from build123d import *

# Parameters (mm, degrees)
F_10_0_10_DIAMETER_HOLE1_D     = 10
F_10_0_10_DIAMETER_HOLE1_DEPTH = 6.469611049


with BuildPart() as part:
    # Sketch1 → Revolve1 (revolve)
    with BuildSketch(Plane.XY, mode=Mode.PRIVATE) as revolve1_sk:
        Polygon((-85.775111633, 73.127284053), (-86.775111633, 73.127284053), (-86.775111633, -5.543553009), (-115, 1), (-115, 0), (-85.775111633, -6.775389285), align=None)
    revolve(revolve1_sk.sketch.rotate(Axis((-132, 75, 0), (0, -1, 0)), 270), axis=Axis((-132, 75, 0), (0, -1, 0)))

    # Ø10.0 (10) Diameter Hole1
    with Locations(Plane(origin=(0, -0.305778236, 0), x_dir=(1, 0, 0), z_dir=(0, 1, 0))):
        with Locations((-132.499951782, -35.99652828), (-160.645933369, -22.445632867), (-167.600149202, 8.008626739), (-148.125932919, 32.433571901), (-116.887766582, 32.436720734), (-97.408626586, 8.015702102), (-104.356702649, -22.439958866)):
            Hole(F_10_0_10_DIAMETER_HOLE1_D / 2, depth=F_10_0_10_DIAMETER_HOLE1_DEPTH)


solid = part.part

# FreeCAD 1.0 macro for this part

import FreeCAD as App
import Part
import Sketcher
Q = App.Units.Quantity


def add_polygon(sketch, points):
    """Adds a closed chain of lines whose ends are joined by coincident constraints."""
    first, n = sketch.GeometryCount, len(points)
    for a, b in zip(points, points[1:] + points[:1]):
        sketch.addGeometry(Part.LineSegment(App.Vector(*a, 0), App.Vector(*b, 0)), False)
    for i in range(n):
        sketch.addConstraint(Sketcher.Constraint("Coincident", first + i, 2, first + (i + 1) % n, 1))

doc = App.newDocument("Part")
body = doc.addObject("PartDesign::Body", "Body")

# Sketch on XY plane
sketch1 = doc.addObject("Sketcher::SketchObject", "Sketch")
body.addObject(sketch1)
sketch1.AttachmentSupport = (doc.XY_Plane, [""])
sketch1.MapMode = "FlatFace"
add_polygon(sketch1, [(-85.8, 73.1), (-86.8, 73.1), (-86.8, -5.5), (-115, 1), (-115, 0), (-85.8, -6.8)])  # lines 0-5
sketch1.addGeometry(Part.LineSegment(App.Vector(-132, 73.1, 0), App.Vector(-132, -6.8, 0)), True)  # axis
sketch1.addConstraint(Sketcher.Constraint("Horizontal", 0))
sketch1.addConstraint(Sketcher.Constraint("Vertical", 1))
sketch1.addConstraint(Sketcher.Constraint("Vertical", 3))
sketch1.addConstraint(Sketcher.Constraint("Vertical", 5))
sketch1.addConstraint(Sketcher.Constraint("Vertical", 6))
sketch1.addConstraint(Sketcher.Constraint("PointOnObject", 3, 2, -1))
sketch1.addConstraint(Sketcher.Constraint("Parallel", 2, 4))
sketch1.addConstraint(Sketcher.Constraint("Horizontal", 5, 2, 6, 1))
sketch1.addConstraint(Sketcher.Constraint("Horizontal", 4, 2, 6, 2))
sketch1.addConstraint(Sketcher.Constraint("Equal", 0, 3))
sketch1.addConstraint(Sketcher.Constraint("DistanceX", 0, 2, 0, 1, Q("1 mm")))
sketch1.addConstraint(Sketcher.Constraint("Distance", 4, Q("30 mm")))
sketch1.addConstraint(Sketcher.Constraint("DistanceX", 2, 2, -1, 1, Q("115 mm")))
sketch1.addConstraint(Sketcher.Constraint("DistanceX", 6, 1, -1, 1, Q("132 mm")))
sketch1.addConstraint(Sketcher.Constraint("DistanceY", 1, 2, 1, 1, Q("78.670837 mm")))
sketch1.addConstraint(Sketcher.Constraint("DistanceY", 5, 1, 5, 2, Q("79.902673 mm")))
revolution = doc.addObject("PartDesign::Revolution", "Revolution")
body.addObject(revolution)
revolution.Profile = sketch1
revolution.ReferenceAxis = (sketch1, ["Axis0"])
revolution.Angle = 360

# Sketch on XZ plane
sketch2 = doc.addObject("Sketcher::SketchObject", "Sketch001")
body.addObject(sketch2)
sketch2.AttachmentSupport = (doc.XZ_Plane, [""])
sketch2.MapMode = "FlatFace"
sketch2.AttachmentOffset = App.Placement(App.Vector(0, 0, 0.305778), App.Rotation())
sketch2.addGeometry(Part.Circle(App.Vector(-132, 36, 0), App.Vector(0, 0, 1), 5), False)
sketch2.addGeometry(Part.Circle(App.Vector(-161, 22, 0), App.Vector(0, 0, 1), 5), False)
sketch2.addGeometry(Part.Circle(App.Vector(-168, -8, 0), App.Vector(0, 0, 1), 5), False)
sketch2.addGeometry(Part.Circle(App.Vector(-148, -32, 0), App.Vector(0, 0, 1), 5), False)
sketch2.addGeometry(Part.Circle(App.Vector(-117, -32, 0), App.Vector(0, 0, 1), 5), False)
sketch2.addGeometry(Part.Circle(App.Vector(-97, -8, 0), App.Vector(0, 0, 1), 5), False)
sketch2.addGeometry(Part.Circle(App.Vector(-104, 22, 0), App.Vector(0, 0, 1), 5), False)
sketch2.addConstraint(Sketcher.Constraint("Equal", 0, 1))
sketch2.addConstraint(Sketcher.Constraint("Equal", 1, 2))
sketch2.addConstraint(Sketcher.Constraint("Equal", 2, 3))
sketch2.addConstraint(Sketcher.Constraint("Equal", 3, 4))
sketch2.addConstraint(Sketcher.Constraint("Equal", 4, 5))
sketch2.addConstraint(Sketcher.Constraint("Equal", 5, 6))
sketch2.addConstraint(Sketcher.Constraint("Diameter", 0, Q("10 mm")))
sketch2.addConstraint(Sketcher.Constraint("DistanceX", 1, 3, 3, 3, Q("12.52 mm")))
sketch2.addConstraint(Sketcher.Constraint("DistanceY", 3, 3, 0, 3, Q("68.4301 mm")))
sketch2.addConstraint(Sketcher.Constraint("DistanceX", 0, 3, -1, 1, Q("132.499952 mm")))
sketch2.addConstraint(Sketcher.Constraint("DistanceY", -1, 1, 0, 3, Q("35.996528 mm")))
sketch2.addConstraint(Sketcher.Constraint("DistanceX", 2, 3, -1, 1, Q("167.600149 mm")))
sketch2.addConstraint(Sketcher.Constraint("DistanceY", 4, 3, -1, 1, Q("32.436721 mm")))
sketch2.addConstraint(Sketcher.Constraint("DistanceY", -1, 1, 6, 3, Q("22.439959 mm")))
sketch2.addConstraint(Sketcher.Constraint("DistanceX", 1, 3, 0, 3, Q("28.145982 mm")))
sketch2.addConstraint(Sketcher.Constraint("DistanceY", 2, 3, 1, 3, Q("30.45426 mm")))
sketch2.addConstraint(Sketcher.Constraint("DistanceX", 4, 3, 5, 3, Q("19.47914 mm")))
sketch2.addConstraint(Sketcher.Constraint("DistanceY", 4, 3, 5, 3, Q("24.421019 mm")))
sketch2.addConstraint(Sketcher.Constraint("DistanceX", 0, 3, 6, 3, Q("28.143249 mm")))
sketch2.addConstraint(Sketcher.Constraint("DistanceY", -1, 1, 1, 3, Q("22.445633 mm")))
sketch2.addConstraint(Sketcher.Constraint("DistanceX", 4, 3, -1, 1, Q("116.887767 mm")))
doc.recompute()
hole = doc.addObject("PartDesign::Hole", "Hole")
body.addObject(hole)
hole.Profile = sketch2
hole.ThreadType = "None"
hole.Diameter = 10
hole.DepthType = "Dimension"
hole.Depth = 6.469611
hole.DrillPoint = "Flat"
hole.Reversed = True

doc.recompute()
